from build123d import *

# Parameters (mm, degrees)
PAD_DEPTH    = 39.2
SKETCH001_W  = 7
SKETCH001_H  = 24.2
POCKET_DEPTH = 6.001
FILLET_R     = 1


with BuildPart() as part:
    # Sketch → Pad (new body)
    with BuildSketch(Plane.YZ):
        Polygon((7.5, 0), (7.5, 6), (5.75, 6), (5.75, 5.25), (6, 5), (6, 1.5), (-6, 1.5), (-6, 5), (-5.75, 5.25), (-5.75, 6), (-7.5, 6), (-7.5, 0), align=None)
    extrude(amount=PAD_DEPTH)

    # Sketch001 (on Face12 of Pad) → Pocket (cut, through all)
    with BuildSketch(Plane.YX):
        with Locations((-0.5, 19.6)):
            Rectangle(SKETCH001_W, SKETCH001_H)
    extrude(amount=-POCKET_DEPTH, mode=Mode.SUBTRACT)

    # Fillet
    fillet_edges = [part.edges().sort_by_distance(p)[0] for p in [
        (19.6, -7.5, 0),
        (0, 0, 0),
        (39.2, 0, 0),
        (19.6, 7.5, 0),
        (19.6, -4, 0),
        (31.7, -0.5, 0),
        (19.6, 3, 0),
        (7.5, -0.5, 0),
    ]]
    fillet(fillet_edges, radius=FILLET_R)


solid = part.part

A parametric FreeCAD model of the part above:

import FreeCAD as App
import Part
import Sketcher
from FreeCAD import Vector


def edges_at(feature, points):
    """Names of the edges that pass closest to the given points."""
    edges = feature.Shape.Edges
    near = lambda p: min(range(len(edges)), key=lambda i: edges[i].distToShape(Part.Vertex(*p))[0])
    return sorted({f"Edge{near(p) + 1}" for p in points})

doc = App.newDocument("Part")
params = doc.addObject("Spreadsheet::Sheet", "Params")
for row, (alias, value) in enumerate([
    ("sketch1_width", "12 mm"),
    ("sketch1_width2", "15 mm"),
    ("sketch1_height", "6 mm"),
    ("sketch1_height2", "3.5 mm"),
    ("sketch1_width3", "1.75 mm"),
    ("pad1_length", "39.2 mm"),
    ("sketch2_height", "7 mm"),
    ("sketch2_width", "24.2 mm"),
    ("fillet_radius", "1 mm"),
], start=1):
    params.set(f"A{row}", alias)
    params.set(f"B{row}", "=" + value)
    params.setAlias(f"B{row}", alias)

body = doc.addObject("PartDesign::Body", "Body")

# Sketch on YZ plane
sketch1 = body.newObject("Sketcher::SketchObject", "Sketch")
sketch1.AttachmentSupport = (doc.getObject("YZ_Plane"), [""])
sketch1.MapMode = "FlatFace"
sketch1.addGeometry([
    Part.LineSegment(Vector(7.5, 0, 0), Vector(7.5, 6, 0)),  # 0
    Part.LineSegment(Vector(7.5, 6, 0), Vector(5.75, 6, 0)),  # 1
    Part.LineSegment(Vector(5.75, 6, 0), Vector(5.75, 5.25, 0)),  # 2
    Part.LineSegment(Vector(5.75, 5.25, 0), Vector(6, 5, 0)),  # 3
    Part.LineSegment(Vector(6, 5, 0), Vector(6, 1.5, 0)),  # 4
    Part.LineSegment(Vector(6, 1.5, 0), Vector(-6, 1.5, 0)),  # 5
    Part.LineSegment(Vector(-6, 1.5, 0), Vector(-6, 5, 0)),  # 6
    Part.LineSegment(Vector(-6, 5, 0), Vector(-5.75, 5.25, 0)),  # 7
    Part.LineSegment(Vector(-5.75, 5.25, 0), Vector(-5.75, 6, 0)),  # 8
    Part.LineSegment(Vector(-5.75, 6, 0), Vector(-7.5, 6, 0)),  # 9
    Part.LineSegment(Vector(-7.5, 6, 0), Vector(-7.5, 0, 0)),  # 10
    Part.LineSegment(Vector(-7.5, 0, 0), Vector(7.5, 0, 0)),  # 11
], False)
sketch1.addConstraint([
    Sketcher.Constraint("Coincident", 0, 2, 1, 1),
    Sketcher.Constraint("Coincident", 1, 2, 2, 1),
    Sketcher.Constraint("Coincident", 2, 2, 3, 1),
    Sketcher.Constraint("Coincident", 3, 2, 4, 1),
    Sketcher.Constraint("Coincident", 4, 2, 5, 1),
    Sketcher.Constraint("Coincident", 5, 2, 6, 1),
    Sketcher.Constraint("Coincident", 6, 2, 7, 1),
    Sketcher.Constraint("Coincident", 7, 2, 8, 1),
    Sketcher.Constraint("Coincident", 8, 2, 9, 1),
    Sketcher.Constraint("Coincident", 9, 2, 10, 1),
    Sketcher.Constraint("Coincident", 10, 2, 11, 1),
    Sketcher.Constraint("Coincident", 11, 2, 0, 1),
    Sketcher.Constraint("Vertical", 0),
    Sketcher.Constraint("Horizontal", 1),
    Sketcher.Constraint("Vertical", 2),
    Sketcher.Constraint("Vertical", 4),
    Sketcher.Constraint("Horizontal", 5),
    Sketcher.Constraint("Vertical", 6),
    Sketcher.Constraint("Vertical", 8),
    Sketcher.Constraint("Horizontal", 9),
    Sketcher.Constraint("Vertical", 10),
    Sketcher.Constraint("Horizontal", 11),
    Sketcher.Constraint("Symmetric", 10, 2, 11, 2, -1, 1),
    Sketcher.Constraint("Symmetric", 3, 2, 6, 2, -2),
    Sketcher.Constraint("Symmetric", 2, 2, 7, 2, -2),
    Sketcher.Constraint("Perpendicular", 3, 7),
    Sketcher.Constraint("Horizontal", 1, 2, 8, 2),
    Sketcher.Constraint("DistanceX", 5, 2, 5, 1, 12.0),
    Sketcher.Constraint("DistanceX", 11, 1, 11, 2, 15.0),
    Sketcher.Constraint("DistanceY", 0, 1, 0, 2, 6.0),
    Sketcher.Constraint("DistanceY", 4, 2, 4, 1, 3.5),
    Sketcher.Constraint("DistanceY", -1, 1, 3, 2, 5.0),
    Sketcher.Constraint("DistanceX", 1, 2, 1, 1, 1.75),
])
sketch1.setExpression("Constraints[27]", "Params.sketch1_width")
sketch1.setExpression("Constraints[28]", "Params.sketch1_width2")
sketch1.setExpression("Constraints[29]", "Params.sketch1_height")
sketch1.setExpression("Constraints[30]", "Params.sketch1_height2")
sketch1.setExpression("Constraints[32]", "Params.sketch1_width3")
pad1 = body.newObject("PartDesign::Pad", "Pad")
pad1.Profile = sketch1
pad1.setExpression("Length", "Params.pad1_length")

# Sketch on XY plane
sketch2 = body.newObject("Sketcher::SketchObject", "Sketch001")
sketch2.AttachmentSupport = (doc.getObject("XY_Plane"), [""])
sketch2.MapMode = "FlatFace"
sketch2.addGeometry([
    Part.LineSegment(Vector(32, -4, 0), Vector(8, -4, 0)),
    Part.LineSegment(Vector(8, -4, 0), Vector(8, 3, 0)),
    Part.LineSegment(Vector(8, 3, 0), Vector(32, 3, 0)),
    Part.LineSegment(Vector(32, 3, 0), Vector(32, -4, 0)),
], False)
sketch2.addConstraint([
    Sketcher.Constraint("Coincident", 0, 2, 1, 1),
    Sketcher.Constraint("Coincident", 1, 2, 2, 1),
    Sketcher.Constraint("Coincident", 2, 2, 3, 1),
    Sketcher.Constraint("Coincident", 3, 2, 0, 1),
    Sketcher.Constraint("Horizontal", 0),
    Sketcher.Constraint("Vertical", 1),
    Sketcher.Constraint("Horizontal", 2),
    Sketcher.Constraint("Vertical", 3),
    Sketcher.Constraint("DistanceY", 1, 1, 1, 2, 7.0),
    Sketcher.Constraint("DistanceX", 0, 2, 0, 1, 24.2),
    Sketcher.Constraint("DistanceY", 0, 2, -1, 1, 4.0),
    Sketcher.Constraint("DistanceX", -1, 1, 0, 2, 7.5),
])
sketch2.setExpression("Constraints[8]", "Params.sketch2_height")
sketch2.setExpression("Constraints[9]", "Params.sketch2_width")
pocket1 = body.newObject("PartDesign::Pocket", "Pocket")
pocket1.Profile = sketch2
pocket1.Type = "ThroughAll"
pocket1.Reversed = True
doc.recompute()

fillet = body.newObject("PartDesign::Fillet", "Fillet")
fillet.Base = (pocket1, edges_at(pocket1, [
    (19.6, -7.5, 0),
    (0, 0, 0),
    (39.2, 0, 0),
    (19.6, 7.5, 0),
    (19.6, -4, 0),
    (31.7, -0.5, 0),
    (19.6, 3, 0),
    (7.5, -0.5, 0),
]))
fillet.setExpression("Radius", "Params.fillet_radius")

doc.recompute()
